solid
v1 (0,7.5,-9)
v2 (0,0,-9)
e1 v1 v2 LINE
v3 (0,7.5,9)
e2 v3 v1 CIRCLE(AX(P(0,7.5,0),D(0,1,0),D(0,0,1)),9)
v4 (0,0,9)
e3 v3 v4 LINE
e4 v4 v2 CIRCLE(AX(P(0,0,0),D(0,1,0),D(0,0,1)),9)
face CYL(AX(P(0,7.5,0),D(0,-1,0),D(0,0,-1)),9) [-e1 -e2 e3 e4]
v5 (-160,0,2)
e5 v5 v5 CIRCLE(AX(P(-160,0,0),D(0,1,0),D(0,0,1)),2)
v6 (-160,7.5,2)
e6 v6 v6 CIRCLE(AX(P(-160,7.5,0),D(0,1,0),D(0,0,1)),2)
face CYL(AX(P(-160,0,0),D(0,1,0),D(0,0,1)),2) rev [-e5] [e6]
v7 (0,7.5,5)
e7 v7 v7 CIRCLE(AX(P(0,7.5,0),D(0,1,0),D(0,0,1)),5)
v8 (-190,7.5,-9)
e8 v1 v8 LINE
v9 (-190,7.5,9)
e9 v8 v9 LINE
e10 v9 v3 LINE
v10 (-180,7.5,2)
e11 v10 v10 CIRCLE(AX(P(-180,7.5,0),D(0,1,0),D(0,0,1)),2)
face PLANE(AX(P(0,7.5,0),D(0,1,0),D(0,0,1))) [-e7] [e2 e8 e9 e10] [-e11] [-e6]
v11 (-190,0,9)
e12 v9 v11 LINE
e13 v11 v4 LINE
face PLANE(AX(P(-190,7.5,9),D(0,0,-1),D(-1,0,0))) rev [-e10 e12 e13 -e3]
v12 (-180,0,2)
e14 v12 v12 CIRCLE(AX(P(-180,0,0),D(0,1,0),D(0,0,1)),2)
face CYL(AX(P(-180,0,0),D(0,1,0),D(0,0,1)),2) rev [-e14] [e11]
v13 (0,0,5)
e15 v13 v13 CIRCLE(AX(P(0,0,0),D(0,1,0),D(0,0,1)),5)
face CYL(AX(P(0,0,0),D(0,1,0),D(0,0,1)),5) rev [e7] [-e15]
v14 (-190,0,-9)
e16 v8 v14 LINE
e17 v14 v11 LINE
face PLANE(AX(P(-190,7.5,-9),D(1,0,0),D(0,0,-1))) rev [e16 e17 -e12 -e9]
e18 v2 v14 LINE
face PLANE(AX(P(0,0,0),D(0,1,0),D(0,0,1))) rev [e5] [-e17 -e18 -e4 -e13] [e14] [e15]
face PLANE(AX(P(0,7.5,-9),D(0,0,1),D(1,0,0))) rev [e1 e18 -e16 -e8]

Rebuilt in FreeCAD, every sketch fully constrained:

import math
import FreeCAD as App
import Part
import Sketcher

V = App.Vector
Q = App.Units.Quantity

doc = App.newDocument("Part")
body = doc.addObject("PartDesign::Body", "Body")

sketch1 = body.newObject("Sketcher::SketchObject", "Sketch")
sketch1.AttachmentSupport = (doc.getObject("XZ_Plane"), [""])
sketch1.MapMode = "FlatFace"
sketch1.addGeometry(Part.LineSegment(V(0, -9, 0), V(-190, -9, 0)), False)
sketch1.addGeometry(Part.LineSegment(V(-190, -9, 0), V(-190, 9, 0)), False)
sketch1.addGeometry(Part.LineSegment(V(-190, 9, 0), V(0, 9, 0)), False)
sketch1.addGeometry(Part.ArcOfCircle(Part.Circle(V(0, 0, 0), V(0, 0, 1), 9), math.radians(-90), math.radians(90)), False)
sketch1.addConstraint(Sketcher.Constraint("Coincident", 0, 2, 1, 1))
sketch1.addConstraint(Sketcher.Constraint("Coincident", 1, 2, 2, 1))
sketch1.addConstraint(Sketcher.Constraint("Tangent", 2, 2, 3, 2))
sketch1.addConstraint(Sketcher.Constraint("Tangent", 3, 1, 0, 1))
sketch1.addConstraint(Sketcher.Constraint("Horizontal", 0))
sketch1.addConstraint(Sketcher.Constraint("Vertical", 1))
sketch1.addConstraint(Sketcher.Constraint("Horizontal", 2))
sketch1.addConstraint(Sketcher.Constraint("Coincident", 3, 3, -1, 1))
sketch1.addConstraint(Sketcher.Constraint("Radius", 3, Q("9 mm")))
sketch1.addConstraint(Sketcher.Constraint("DistanceX", 0, 2, 0, 1, Q("190 mm")))
pad1 = body.newObject("PartDesign::Pad", "Pad")
pad1.Profile = sketch1
pad1.Length = 7.5
pad1.Reversed = True

sketch2 = body.newObject("Sketcher::SketchObject", "Sketch001")
sketch2.AttachmentSupport = (doc.getObject("XZ_Plane"), [""])
sketch2.MapMode = "FlatFace"
sketch2.AttachmentOffset = App.Placement(V(0, 0, -7.5), App.Rotation())
sketch2.addGeometry(Part.Circle(V(-180, 0, 0), V(0, 0, 1), 2), False)
sketch2.addGeometry(Part.Circle(V(-160, 0, 0), V(0, 0, 1), 2), False)
sketch2.addConstraint(Sketcher.Constraint("Equal", 0, 1))
sketch2.addConstraint(Sketcher.Constraint("PointOnObject", 0, 3, -1))
sketch2.addConstraint(Sketcher.Constraint("PointOnObject", 1, 3, -1))
sketch2.addConstraint(Sketcher.Constraint("Diameter", 0, Q("4 mm")))
sketch2.addConstraint(Sketcher.Constraint("DistanceX", 0, 3, -1, 1, Q("180 mm")))
sketch2.addConstraint(Sketcher.Constraint("DistanceX", 1, 3, -1, 1, Q("160 mm")))
pocket1 = body.newObject("PartDesign::Pocket", "Pocket")
pocket1.Profile = sketch2
pocket1.Type = "ThroughAll"
pocket1.Reversed = True

sketch3 = body.newObject("Sketcher::SketchObject", "Sketch002")
sketch3.AttachmentSupport = (doc.getObject("XZ_Plane"), [""])
sketch3.MapMode = "FlatFace"
sketch3.AttachmentOffset = App.Placement(V(0, 0, -7.5), App.Rotation())
sketch3.addGeometry(Part.Circle(V(0, 0, 0), V(0, 0, 1), 5), False)
sketch3.addConstraint(Sketcher.Constraint("Coincident", 0, 3, -1, 1))
sketch3.addConstraint(Sketcher.Constraint("Diameter", 0, Q("10 mm")))
pocket2 = body.newObject("PartDesign::Pocket", "Pocket001")
pocket2.Profile = sketch3
pocket2.Type = "ThroughAll"
pocket2.Reversed = True

doc.recompute()
